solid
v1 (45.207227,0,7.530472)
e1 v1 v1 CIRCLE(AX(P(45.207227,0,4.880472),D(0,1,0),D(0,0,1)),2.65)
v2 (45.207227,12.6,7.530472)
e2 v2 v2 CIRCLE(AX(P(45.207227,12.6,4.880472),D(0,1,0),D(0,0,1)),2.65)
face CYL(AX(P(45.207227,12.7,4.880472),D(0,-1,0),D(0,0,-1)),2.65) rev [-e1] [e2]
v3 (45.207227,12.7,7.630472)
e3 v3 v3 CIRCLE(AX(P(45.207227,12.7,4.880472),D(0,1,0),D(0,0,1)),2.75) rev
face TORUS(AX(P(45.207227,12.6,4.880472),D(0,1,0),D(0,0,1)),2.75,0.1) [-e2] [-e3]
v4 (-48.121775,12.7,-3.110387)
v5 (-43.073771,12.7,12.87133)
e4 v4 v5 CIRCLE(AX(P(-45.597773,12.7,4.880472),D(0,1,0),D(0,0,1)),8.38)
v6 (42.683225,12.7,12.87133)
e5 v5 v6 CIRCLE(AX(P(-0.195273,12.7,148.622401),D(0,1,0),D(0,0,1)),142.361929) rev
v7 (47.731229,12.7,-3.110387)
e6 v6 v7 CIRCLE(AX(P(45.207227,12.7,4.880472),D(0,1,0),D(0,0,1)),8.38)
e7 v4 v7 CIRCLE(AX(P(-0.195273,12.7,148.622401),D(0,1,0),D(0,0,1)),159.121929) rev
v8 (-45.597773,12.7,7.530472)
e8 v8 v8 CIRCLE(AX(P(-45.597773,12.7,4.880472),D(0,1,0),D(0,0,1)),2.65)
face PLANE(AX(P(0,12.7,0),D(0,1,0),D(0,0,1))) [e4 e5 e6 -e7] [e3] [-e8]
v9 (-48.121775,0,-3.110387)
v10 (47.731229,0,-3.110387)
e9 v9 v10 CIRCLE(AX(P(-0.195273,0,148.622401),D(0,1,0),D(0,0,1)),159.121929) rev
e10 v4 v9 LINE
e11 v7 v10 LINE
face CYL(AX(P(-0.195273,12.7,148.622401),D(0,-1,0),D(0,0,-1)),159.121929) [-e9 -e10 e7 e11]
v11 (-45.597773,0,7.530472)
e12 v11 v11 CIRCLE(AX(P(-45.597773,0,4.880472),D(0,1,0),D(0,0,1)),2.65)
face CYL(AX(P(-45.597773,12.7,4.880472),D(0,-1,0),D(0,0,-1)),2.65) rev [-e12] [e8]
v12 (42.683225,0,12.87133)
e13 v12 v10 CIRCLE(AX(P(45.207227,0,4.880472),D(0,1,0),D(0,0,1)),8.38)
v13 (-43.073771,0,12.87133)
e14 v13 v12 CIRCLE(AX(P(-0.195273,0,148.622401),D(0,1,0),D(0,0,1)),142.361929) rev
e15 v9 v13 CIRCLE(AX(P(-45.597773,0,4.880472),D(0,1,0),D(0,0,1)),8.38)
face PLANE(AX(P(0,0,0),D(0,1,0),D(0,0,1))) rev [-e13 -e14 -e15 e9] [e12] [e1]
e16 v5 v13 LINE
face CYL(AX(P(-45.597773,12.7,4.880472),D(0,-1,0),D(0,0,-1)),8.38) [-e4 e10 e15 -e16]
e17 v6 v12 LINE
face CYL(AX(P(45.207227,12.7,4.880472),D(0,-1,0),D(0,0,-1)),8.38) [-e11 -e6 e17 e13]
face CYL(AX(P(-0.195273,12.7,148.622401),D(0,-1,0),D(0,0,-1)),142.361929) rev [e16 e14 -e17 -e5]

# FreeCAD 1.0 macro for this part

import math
import FreeCAD as App
import Part
import Sketcher


def edges_at(feature, points):
    """Names of the edges that pass closest to the given points."""
    edges = feature.Shape.Edges
    near = lambda p: min(range(len(edges)), key=lambda i: edges[i].distToShape(Part.Vertex(*p))[0])
    return sorted({f"Edge{near(p) + 1}" for p in points})

doc = App.newDocument("Part")
params = doc.addObject("Spreadsheet::Sheet", "Params")
for row, (alias, value) in enumerate([
    ("sketch1_diameter", "5.3 mm"),
    ("sketch1_radius", "8.38 mm"),
    ("pad1_length", "12.7 mm"),
    ("fillet_radius", "0.1 mm"),
], start=1):
    params.set(f"A{row}", alias)
    params.set(f"B{row}", "=" + value)
    params.setAlias(f"B{row}", alias)

body = doc.addObject("PartDesign::Body", "Body")

# Sketch on XZ plane
sketch1 = doc.addObject("Sketcher::SketchObject", "Sketch")
body.addObject(sketch1)
sketch1.AttachmentSupport = (doc.XZ_Plane, [""])
sketch1.MapMode = "FlatFace"
sketch1.addGeometry(Part.ArcOfCircle(Part.Circle(App.Vector(-45.6, 4.9, 0), App.Vector(0, 0, 1), 8.4), math.radians(72), math.radians(252)), False)
sketch1.addGeometry(Part.ArcOfCircle(Part.Circle(App.Vector(-0.2, 148.6, 0), App.Vector(0, 0, 1), 142.4), math.radians(-108), math.radians(-72)), False)
sketch1.addGeometry(Part.ArcOfCircle(Part.Circle(App.Vector(45.2, 4.9, 0), App.Vector(0, 0, 1), 8.4), math.radians(-72), math.radians(108)), False)
sketch1.addGeometry(Part.ArcOfCircle(Part.Circle(App.Vector(-0.2, 148.6, 0), App.Vector(0, 0, 1), 159.1), math.radians(-108), math.radians(-72)), False)
sketch1.addGeometry(Part.Circle(App.Vector(-45.6, 4.9, 0), App.Vector(0, 0, 1), 2.6), False)
sketch1.addGeometry(Part.Circle(App.Vector(45.2, 4.9, 0), App.Vector(0, 0, 1), 2.6), False)
sketch1.addConstraint(Sketcher.Constraint("Tangent", 0, 1, 1, 1))
sketch1.addConstraint(Sketcher.Constraint("Tangent", 1, 2, 2, 2))
sketch1.addConstraint(Sketcher.Constraint("Tangent", 2, 1, 3, 2))
sketch1.addConstraint(Sketcher.Constraint("Tangent", 3, 1, 0, 2))
sketch1.addConstraint(Sketcher.Constraint("Coincident", 3, 3, 1, 3))
sketch1.addConstraint(Sketcher.Constraint("Coincident", 4, 3, 0, 3))
sketch1.addConstraint(Sketcher.Constraint("Coincident", 5, 3, 2, 3))
sketch1.addConstraint(Sketcher.Constraint("Equal", 4, 5))
sketch1.addConstraint(Sketcher.Constraint("Horizontal", 0, 3, 2, 3))
sketch1.addConstraint(Sketcher.Constraint("Diameter", 4, 5.3))
sketch1.addConstraint(Sketcher.Constraint("Radius", 0, 8.38))
sketch1.addConstraint(Sketcher.Constraint("Radius", 1, 142.361929))
sketch1.addConstraint(Sketcher.Constraint("DistanceX", 0, 3, 2, 3, 90.805))
sketch1.addConstraint(Sketcher.Constraint("DistanceY", -1, 1, 1, 3, 148.622401))
sketch1.addConstraint(Sketcher.Constraint("DistanceX", 0, 1, -1, 1, 43.073771))
sketch1.setExpression("Constraints[9]", "Params.sketch1_diameter")
sketch1.setExpression("Constraints[10]", "Params.sketch1_radius")
pad1 = doc.addObject("PartDesign::Pad", "Pad")
body.addObject(pad1)
pad1.Profile = sketch1
pad1.setExpression("Length", "Params.pad1_length")
pad1.Reversed = True
doc.recompute()

fillet = doc.addObject("PartDesign::Fillet", "Fillet")
body.addObject(fillet)
fillet.Base = (pad1, edges_at(pad1, [(45.207, 12.7, 2.23)]))
fillet.setExpression("Radius", "Params.fillet_radius")

doc.recompute()
